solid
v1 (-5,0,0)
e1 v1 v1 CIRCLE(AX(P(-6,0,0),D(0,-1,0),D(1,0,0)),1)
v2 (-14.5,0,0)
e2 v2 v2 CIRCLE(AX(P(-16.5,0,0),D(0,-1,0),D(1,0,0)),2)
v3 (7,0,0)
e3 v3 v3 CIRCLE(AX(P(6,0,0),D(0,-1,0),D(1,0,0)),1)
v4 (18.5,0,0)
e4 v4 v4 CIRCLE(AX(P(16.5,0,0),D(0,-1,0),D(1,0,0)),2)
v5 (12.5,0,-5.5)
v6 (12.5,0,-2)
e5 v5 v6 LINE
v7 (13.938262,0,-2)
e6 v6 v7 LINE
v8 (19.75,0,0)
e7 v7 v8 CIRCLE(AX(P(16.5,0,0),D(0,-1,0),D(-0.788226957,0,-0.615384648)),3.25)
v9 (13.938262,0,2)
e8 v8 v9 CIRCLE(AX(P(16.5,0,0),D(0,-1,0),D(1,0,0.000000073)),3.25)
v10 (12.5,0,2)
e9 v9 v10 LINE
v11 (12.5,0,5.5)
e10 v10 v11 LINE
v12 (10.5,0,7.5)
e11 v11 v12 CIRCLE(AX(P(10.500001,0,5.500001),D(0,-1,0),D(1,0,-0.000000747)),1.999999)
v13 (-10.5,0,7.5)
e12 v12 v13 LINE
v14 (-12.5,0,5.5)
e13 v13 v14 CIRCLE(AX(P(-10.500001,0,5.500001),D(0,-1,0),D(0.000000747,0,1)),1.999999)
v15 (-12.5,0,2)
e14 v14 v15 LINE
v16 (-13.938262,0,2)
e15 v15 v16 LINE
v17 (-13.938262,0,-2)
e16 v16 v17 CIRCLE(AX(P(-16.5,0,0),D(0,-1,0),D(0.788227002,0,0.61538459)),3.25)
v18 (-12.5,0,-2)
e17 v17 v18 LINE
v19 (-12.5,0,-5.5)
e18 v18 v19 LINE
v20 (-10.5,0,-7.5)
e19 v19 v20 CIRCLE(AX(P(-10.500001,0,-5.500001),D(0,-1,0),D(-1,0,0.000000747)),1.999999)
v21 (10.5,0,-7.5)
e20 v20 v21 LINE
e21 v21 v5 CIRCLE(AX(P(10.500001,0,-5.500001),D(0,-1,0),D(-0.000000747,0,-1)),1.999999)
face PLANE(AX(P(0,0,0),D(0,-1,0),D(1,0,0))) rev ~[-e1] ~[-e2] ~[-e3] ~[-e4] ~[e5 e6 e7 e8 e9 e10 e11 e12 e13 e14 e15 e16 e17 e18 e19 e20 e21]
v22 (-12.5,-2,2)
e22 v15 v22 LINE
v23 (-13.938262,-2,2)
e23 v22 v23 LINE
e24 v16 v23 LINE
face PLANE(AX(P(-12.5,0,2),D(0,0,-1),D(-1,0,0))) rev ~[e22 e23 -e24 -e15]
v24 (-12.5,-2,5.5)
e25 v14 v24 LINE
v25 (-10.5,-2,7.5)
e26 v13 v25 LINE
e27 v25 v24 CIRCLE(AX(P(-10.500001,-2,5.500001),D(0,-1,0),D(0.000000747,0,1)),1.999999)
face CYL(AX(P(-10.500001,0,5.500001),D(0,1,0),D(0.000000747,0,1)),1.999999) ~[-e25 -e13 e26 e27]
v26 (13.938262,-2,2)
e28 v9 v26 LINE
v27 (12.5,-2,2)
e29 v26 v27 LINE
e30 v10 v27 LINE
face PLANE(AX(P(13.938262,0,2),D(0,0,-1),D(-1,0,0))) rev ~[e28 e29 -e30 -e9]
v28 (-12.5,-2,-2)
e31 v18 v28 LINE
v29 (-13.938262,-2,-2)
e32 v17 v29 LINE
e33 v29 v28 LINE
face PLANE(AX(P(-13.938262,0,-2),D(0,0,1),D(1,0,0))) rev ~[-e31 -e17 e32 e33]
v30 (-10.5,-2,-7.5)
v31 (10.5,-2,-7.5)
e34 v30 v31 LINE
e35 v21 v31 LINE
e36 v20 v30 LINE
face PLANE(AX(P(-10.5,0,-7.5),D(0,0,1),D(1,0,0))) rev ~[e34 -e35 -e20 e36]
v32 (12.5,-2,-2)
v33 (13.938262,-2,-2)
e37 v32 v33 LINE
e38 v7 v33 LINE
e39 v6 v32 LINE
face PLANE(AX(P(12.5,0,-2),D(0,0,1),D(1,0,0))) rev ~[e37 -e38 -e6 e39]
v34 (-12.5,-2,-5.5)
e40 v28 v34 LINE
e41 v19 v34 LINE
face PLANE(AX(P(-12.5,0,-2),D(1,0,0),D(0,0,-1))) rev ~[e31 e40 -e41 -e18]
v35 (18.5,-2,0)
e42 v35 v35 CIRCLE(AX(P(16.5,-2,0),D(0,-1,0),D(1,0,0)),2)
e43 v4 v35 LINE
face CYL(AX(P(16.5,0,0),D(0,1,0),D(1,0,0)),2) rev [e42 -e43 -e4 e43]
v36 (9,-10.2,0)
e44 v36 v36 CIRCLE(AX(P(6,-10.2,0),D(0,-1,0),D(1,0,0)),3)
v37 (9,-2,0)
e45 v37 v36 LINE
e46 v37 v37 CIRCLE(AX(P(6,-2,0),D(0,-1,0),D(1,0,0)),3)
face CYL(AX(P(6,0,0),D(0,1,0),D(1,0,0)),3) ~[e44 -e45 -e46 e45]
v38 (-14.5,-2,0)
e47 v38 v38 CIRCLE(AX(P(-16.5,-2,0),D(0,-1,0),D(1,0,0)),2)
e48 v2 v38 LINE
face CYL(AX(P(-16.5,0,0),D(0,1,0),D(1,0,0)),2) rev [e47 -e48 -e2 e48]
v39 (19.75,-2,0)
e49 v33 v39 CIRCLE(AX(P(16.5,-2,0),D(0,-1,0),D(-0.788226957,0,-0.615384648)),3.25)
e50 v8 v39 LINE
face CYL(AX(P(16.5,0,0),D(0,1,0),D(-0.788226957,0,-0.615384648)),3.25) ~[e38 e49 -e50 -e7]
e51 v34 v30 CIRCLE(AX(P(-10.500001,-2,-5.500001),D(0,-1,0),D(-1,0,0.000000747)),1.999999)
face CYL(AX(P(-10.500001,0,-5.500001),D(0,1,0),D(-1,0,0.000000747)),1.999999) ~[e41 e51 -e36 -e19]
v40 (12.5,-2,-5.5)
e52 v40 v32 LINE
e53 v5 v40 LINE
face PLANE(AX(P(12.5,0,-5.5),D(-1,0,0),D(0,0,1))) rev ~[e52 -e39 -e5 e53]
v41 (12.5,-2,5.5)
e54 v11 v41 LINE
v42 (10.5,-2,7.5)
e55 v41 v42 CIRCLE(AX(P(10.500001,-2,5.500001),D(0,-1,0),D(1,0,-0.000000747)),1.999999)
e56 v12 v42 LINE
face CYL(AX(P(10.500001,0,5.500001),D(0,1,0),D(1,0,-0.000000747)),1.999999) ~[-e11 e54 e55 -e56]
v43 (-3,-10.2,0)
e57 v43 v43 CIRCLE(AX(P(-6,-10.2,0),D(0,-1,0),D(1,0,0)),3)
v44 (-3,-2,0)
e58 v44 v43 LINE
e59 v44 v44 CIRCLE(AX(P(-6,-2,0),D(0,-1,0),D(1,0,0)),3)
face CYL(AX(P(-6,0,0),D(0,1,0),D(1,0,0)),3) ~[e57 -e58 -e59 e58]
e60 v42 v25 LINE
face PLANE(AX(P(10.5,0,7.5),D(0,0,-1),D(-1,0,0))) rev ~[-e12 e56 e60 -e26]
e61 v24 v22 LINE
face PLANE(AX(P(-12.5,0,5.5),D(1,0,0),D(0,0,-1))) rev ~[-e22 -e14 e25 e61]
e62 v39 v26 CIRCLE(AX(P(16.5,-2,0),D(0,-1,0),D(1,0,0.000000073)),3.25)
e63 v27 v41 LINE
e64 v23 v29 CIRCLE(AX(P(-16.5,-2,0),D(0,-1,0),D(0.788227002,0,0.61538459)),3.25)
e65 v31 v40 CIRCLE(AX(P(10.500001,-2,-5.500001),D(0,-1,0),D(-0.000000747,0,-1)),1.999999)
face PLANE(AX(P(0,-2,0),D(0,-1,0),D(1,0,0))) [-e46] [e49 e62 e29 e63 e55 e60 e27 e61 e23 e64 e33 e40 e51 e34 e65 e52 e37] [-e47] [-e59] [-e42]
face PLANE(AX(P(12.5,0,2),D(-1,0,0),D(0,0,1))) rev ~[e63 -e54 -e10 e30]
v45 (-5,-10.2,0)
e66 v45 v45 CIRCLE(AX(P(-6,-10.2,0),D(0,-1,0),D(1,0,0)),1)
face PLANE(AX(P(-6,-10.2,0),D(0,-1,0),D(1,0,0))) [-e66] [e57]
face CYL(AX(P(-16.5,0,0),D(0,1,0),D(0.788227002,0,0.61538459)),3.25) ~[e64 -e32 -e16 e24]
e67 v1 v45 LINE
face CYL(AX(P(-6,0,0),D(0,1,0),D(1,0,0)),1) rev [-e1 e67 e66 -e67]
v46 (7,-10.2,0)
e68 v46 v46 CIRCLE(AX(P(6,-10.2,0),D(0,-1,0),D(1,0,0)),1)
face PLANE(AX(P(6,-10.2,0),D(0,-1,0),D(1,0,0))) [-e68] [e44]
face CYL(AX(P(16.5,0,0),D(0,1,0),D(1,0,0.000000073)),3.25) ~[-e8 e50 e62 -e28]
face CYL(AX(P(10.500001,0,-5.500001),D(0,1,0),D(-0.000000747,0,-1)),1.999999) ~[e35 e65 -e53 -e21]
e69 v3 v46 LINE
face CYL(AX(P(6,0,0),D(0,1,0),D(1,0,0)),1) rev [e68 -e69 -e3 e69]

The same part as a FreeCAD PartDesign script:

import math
import FreeCAD as App
import Part
import Sketcher

doc = App.newDocument("Part")
body = doc.addObject("PartDesign::Body", "Body")

# Sketch on XZ plane
sketch1 = body.newObject("Sketcher::SketchObject", "Sketch")
sketch1.AttachmentSupport = (doc.getObject("XZ_Plane"), [""])
sketch1.MapMode = "FlatFace"
sketch1.addGeometry(Part.LineSegment(App.Vector(-10.5, -7.5, 0), App.Vector(10.5, -7.5, 0)), False)
sketch1.addGeometry(Part.ArcOfCircle(Part.Circle(App.Vector(10.500001, -5.500001, 0), App.Vector(0, 0, 1), 1.999999), math.radians(-90.000043), math.radians(0.000043)), False)
sketch1.addGeometry(Part.LineSegment(App.Vector(12.5, -5.5, 0), App.Vector(12.5, -2, 0)), False)
sketch1.addGeometry(Part.LineSegment(App.Vector(12.5, -2, 0), App.Vector(13.938262, -2, 0)), False)
sketch1.addGeometry(Part.ArcOfCircle(Part.Circle(App.Vector(16.5, 0, 0), App.Vector(0, 0, 1), 3.25), math.radians(-142.020125), math.radians(-0.000004)), False)
sketch1.addGeometry(Part.ArcOfCircle(Part.Circle(App.Vector(16.5, 0, 0), App.Vector(0, 0, 1), 3.25), math.radians(0.000004), math.radians(142.020125)), False)
sketch1.addGeometry(Part.LineSegment(App.Vector(13.938262, 2, 0), App.Vector(12.5, 2, 0)), False)
sketch1.addGeometry(Part.LineSegment(App.Vector(12.5, 2, 0), App.Vector(12.5, 5.5, 0)), False)
sketch1.addGeometry(Part.ArcOfCircle(Part.Circle(App.Vector(10.500001, 5.500001, 0), App.Vector(0, 0, 1), 1.999999), math.radians(-0.000043), math.radians(90.000043)), False)
sketch1.addGeometry(Part.LineSegment(App.Vector(10.5, 7.5, 0), App.Vector(-10.5, 7.5, 0)), False)
sketch1.addGeometry(Part.ArcOfCircle(Part.Circle(App.Vector(-10.500001, 5.500001, 0), App.Vector(0, 0, 1), 1.999999), math.radians(89.999957), math.radians(180.000043)), False)
sketch1.addGeometry(Part.LineSegment(App.Vector(-12.5, 5.5, 0), App.Vector(-12.5, 2, 0)), False)
sketch1.addGeometry(Part.LineSegment(App.Vector(-12.5, 2, 0), App.Vector(-13.938262, 2, 0)), False)
sketch1.addGeometry(Part.ArcOfCircle(Part.Circle(App.Vector(-16.5, 0, 0), App.Vector(0, 0, 1), 3.25), math.radians(37.979871), math.radians(322.020129)), False)
sketch1.addGeometry(Part.LineSegment(App.Vector(-13.938262, -2, 0), App.Vector(-12.5, -2, 0)), False)
sketch1.addGeometry(Part.LineSegment(App.Vector(-12.5, -2, 0), App.Vector(-12.5, -5.5, 0)), False)
sketch1.addGeometry(Part.ArcOfCircle(Part.Circle(App.Vector(-10.500001, -5.500001, 0), App.Vector(0, 0, 1), 1.999999), math.radians(179.999957), math.radians(270.000043)), False)
sketch1.addGeometry(Part.Circle(App.Vector(-16.5, 0, 0), App.Vector(0, 0, 1), 2), False)
sketch1.addGeometry(Part.Circle(App.Vector(-6, 0, 0), App.Vector(0, 0, 1), 3), False)
sketch1.addGeometry(Part.Circle(App.Vector(6, 0, 0), App.Vector(0, 0, 1), 3), False)
sketch1.addGeometry(Part.Circle(App.Vector(16.5, 0, 0), App.Vector(0, 0, 1), 2), False)
sketch1.addConstraint(Sketcher.Constraint("Tangent", 0, 2, 1, 1))
sketch1.addConstraint(Sketcher.Constraint("Tangent", 1, 2, 2, 1))
sketch1.addConstraint(Sketcher.Constraint("Coincident", 2, 2, 3, 1))
sketch1.addConstraint(Sketcher.Constraint("Coincident", 3, 2, 4, 1))
sketch1.addConstraint(Sketcher.Constraint("Tangent", 4, 2, 5, 1))
sketch1.addConstraint(Sketcher.Constraint("Coincident", 5, 2, 6, 1))
sketch1.addConstraint(Sketcher.Constraint("Coincident", 6, 2, 7, 1))
sketch1.addConstraint(Sketcher.Constraint("Tangent", 7, 2, 8, 1))
sketch1.addConstraint(Sketcher.Constraint("Tangent", 8, 2, 9, 1))
sketch1.addConstraint(Sketcher.Constraint("Tangent", 9, 2, 10, 1))
sketch1.addConstraint(Sketcher.Constraint("Tangent", 10, 2, 11, 1))
sketch1.addConstraint(Sketcher.Constraint("Coincident", 11, 2, 12, 1))
sketch1.addConstraint(Sketcher.Constraint("Coincident", 12, 2, 13, 1))
sketch1.addConstraint(Sketcher.Constraint("Coincident", 13, 2, 14, 1))
sketch1.addConstraint(Sketcher.Constraint("Coincident", 14, 2, 15, 1))
sketch1.addConstraint(Sketcher.Constraint("Tangent", 15, 2, 16, 1))
sketch1.addConstraint(Sketcher.Constraint("Tangent", 16, 2, 0, 1))
sketch1.addConstraint(Sketcher.Constraint("Horizontal", 0))
sketch1.addConstraint(Sketcher.Constraint("Vertical", 2))
sketch1.addConstraint(Sketcher.Constraint("Horizontal", 3))
sketch1.addConstraint(Sketcher.Constraint("Horizontal", 6))
sketch1.addConstraint(Sketcher.Constraint("Vertical", 7))
sketch1.addConstraint(Sketcher.Constraint("Horizontal", 9))
sketch1.addConstraint(Sketcher.Constraint("Vertical", 11))
sketch1.addConstraint(Sketcher.Constraint("Horizontal", 12))
sketch1.addConstraint(Sketcher.Constraint("Horizontal", 14))
sketch1.addConstraint(Sketcher.Constraint("Vertical", 15))
sketch1.addConstraint(Sketcher.Constraint("Coincident", 17, 3, 13, 3))
sketch1.addConstraint(Sketcher.Constraint("Coincident", 20, 3, 4, 3))
sketch1.addConstraint(Sketcher.Constraint("Equal", 4, 5))
sketch1.addConstraint(Sketcher.Constraint("Equal", 1, 8))
sketch1.addConstraint(Sketcher.Constraint("Equal", 8, 10))
sketch1.addConstraint(Sketcher.Constraint("Equal", 5, 13))
sketch1.addConstraint(Sketcher.Constraint("Equal", 10, 16))
sketch1.addConstraint(Sketcher.Constraint("Equal", 16, 17))
sketch1.addConstraint(Sketcher.Constraint("Equal", 18, 19))
sketch1.addConstraint(Sketcher.Constraint("Equal", 17, 20))
sketch1.addConstraint(Sketcher.Constraint("Symmetric", 1, 3, 10, 3, -1, 1))
sketch1.addConstraint(Sketcher.Constraint("Symmetric", 4, 3, 13, 3, -1, 1))
sketch1.addConstraint(Sketcher.Constraint("Symmetric", 18, 3, 19, 3, -1, 1))
sketch1.addConstraint(Sketcher.Constraint("Symmetric", 6, 2, 14, 2, -1, 1))
sketch1.addConstraint(Sketcher.Constraint("Symmetric", 6, 2, 11, 2, -2))
sketch1.addConstraint(Sketcher.Constraint("Symmetric", 3, 2, 13, 2, -2))
sketch1.addConstraint(Sketcher.Constraint("PointOnObject", 18, 3, -1))
sketch1.addConstraint(Sketcher.Constraint("PointOnObject", 4, 2, -1))
sketch1.addConstraint(Sketcher.Constraint("Diameter", 17, 4.0))
sketch1.addConstraint(Sketcher.Constraint("Diameter", 18, 6.0))
sketch1.addConstraint(Sketcher.Constraint("DistanceX", 0, 1, 0, 2, 21.0))
sketch1.addConstraint(Sketcher.Constraint("Radius", 4, 3.25))
sketch1.addConstraint(Sketcher.Constraint("DistanceY", 2, 1, 2, 2, 3.5))
sketch1.addConstraint(Sketcher.Constraint("DistanceX", 18, 3, -1, 1, 6.0))
sketch1.addConstraint(Sketcher.Constraint("DistanceY", 2, 2, -1, 1, 2.0))
sketch1.addConstraint(Sketcher.Constraint("DistanceX", 1, 3, 4, 3, 5.999998))
pad1 = body.newObject("PartDesign::Pad", "Pad")
pad1.Profile = sketch1
pad1.Length = 2

# Sketch on XZ plane
sketch2 = body.newObject("Sketcher::SketchObject", "Sketch001")
sketch2.AttachmentSupport = (doc.getObject("XZ_Plane"), [""])
sketch2.MapMode = "FlatFace"
sketch2.addGeometry(Part.Circle(App.Vector(-6, 0, 0), App.Vector(0, 0, 1), 3), False)
sketch2.addGeometry(Part.Circle(App.Vector(-6, 0, 0), App.Vector(0, 0, 1), 1), False)
sketch2.addGeometry(Part.Circle(App.Vector(6, 0, 0), App.Vector(0, 0, 1), 3), False)
sketch2.addGeometry(Part.Circle(App.Vector(6, 0, 0), App.Vector(0, 0, 1), 1), False)
sketch2.addConstraint(Sketcher.Constraint("Coincident", 1, 3, 0, 3))
sketch2.addConstraint(Sketcher.Constraint("Coincident", 3, 3, 2, 3))
sketch2.addConstraint(Sketcher.Constraint("Equal", 0, 2))
sketch2.addConstraint(Sketcher.Constraint("Equal", 1, 3))
sketch2.addConstraint(Sketcher.Constraint("Symmetric", 0, 3, 2, 3, -1, 1))
sketch2.addConstraint(Sketcher.Constraint("PointOnObject", 0, 3, -1))
sketch2.addConstraint(Sketcher.Constraint("Diameter", 0, 6.0))
sketch2.addConstraint(Sketcher.Constraint("Diameter", 1, 2.0))
sketch2.addConstraint(Sketcher.Constraint("DistanceX", 0, 3, -1, 1, 6.0))
pad2 = body.newObject("PartDesign::Pad", "Pad001")
pad2.Profile = sketch2
pad2.Length = 10.2

doc.recompute()
